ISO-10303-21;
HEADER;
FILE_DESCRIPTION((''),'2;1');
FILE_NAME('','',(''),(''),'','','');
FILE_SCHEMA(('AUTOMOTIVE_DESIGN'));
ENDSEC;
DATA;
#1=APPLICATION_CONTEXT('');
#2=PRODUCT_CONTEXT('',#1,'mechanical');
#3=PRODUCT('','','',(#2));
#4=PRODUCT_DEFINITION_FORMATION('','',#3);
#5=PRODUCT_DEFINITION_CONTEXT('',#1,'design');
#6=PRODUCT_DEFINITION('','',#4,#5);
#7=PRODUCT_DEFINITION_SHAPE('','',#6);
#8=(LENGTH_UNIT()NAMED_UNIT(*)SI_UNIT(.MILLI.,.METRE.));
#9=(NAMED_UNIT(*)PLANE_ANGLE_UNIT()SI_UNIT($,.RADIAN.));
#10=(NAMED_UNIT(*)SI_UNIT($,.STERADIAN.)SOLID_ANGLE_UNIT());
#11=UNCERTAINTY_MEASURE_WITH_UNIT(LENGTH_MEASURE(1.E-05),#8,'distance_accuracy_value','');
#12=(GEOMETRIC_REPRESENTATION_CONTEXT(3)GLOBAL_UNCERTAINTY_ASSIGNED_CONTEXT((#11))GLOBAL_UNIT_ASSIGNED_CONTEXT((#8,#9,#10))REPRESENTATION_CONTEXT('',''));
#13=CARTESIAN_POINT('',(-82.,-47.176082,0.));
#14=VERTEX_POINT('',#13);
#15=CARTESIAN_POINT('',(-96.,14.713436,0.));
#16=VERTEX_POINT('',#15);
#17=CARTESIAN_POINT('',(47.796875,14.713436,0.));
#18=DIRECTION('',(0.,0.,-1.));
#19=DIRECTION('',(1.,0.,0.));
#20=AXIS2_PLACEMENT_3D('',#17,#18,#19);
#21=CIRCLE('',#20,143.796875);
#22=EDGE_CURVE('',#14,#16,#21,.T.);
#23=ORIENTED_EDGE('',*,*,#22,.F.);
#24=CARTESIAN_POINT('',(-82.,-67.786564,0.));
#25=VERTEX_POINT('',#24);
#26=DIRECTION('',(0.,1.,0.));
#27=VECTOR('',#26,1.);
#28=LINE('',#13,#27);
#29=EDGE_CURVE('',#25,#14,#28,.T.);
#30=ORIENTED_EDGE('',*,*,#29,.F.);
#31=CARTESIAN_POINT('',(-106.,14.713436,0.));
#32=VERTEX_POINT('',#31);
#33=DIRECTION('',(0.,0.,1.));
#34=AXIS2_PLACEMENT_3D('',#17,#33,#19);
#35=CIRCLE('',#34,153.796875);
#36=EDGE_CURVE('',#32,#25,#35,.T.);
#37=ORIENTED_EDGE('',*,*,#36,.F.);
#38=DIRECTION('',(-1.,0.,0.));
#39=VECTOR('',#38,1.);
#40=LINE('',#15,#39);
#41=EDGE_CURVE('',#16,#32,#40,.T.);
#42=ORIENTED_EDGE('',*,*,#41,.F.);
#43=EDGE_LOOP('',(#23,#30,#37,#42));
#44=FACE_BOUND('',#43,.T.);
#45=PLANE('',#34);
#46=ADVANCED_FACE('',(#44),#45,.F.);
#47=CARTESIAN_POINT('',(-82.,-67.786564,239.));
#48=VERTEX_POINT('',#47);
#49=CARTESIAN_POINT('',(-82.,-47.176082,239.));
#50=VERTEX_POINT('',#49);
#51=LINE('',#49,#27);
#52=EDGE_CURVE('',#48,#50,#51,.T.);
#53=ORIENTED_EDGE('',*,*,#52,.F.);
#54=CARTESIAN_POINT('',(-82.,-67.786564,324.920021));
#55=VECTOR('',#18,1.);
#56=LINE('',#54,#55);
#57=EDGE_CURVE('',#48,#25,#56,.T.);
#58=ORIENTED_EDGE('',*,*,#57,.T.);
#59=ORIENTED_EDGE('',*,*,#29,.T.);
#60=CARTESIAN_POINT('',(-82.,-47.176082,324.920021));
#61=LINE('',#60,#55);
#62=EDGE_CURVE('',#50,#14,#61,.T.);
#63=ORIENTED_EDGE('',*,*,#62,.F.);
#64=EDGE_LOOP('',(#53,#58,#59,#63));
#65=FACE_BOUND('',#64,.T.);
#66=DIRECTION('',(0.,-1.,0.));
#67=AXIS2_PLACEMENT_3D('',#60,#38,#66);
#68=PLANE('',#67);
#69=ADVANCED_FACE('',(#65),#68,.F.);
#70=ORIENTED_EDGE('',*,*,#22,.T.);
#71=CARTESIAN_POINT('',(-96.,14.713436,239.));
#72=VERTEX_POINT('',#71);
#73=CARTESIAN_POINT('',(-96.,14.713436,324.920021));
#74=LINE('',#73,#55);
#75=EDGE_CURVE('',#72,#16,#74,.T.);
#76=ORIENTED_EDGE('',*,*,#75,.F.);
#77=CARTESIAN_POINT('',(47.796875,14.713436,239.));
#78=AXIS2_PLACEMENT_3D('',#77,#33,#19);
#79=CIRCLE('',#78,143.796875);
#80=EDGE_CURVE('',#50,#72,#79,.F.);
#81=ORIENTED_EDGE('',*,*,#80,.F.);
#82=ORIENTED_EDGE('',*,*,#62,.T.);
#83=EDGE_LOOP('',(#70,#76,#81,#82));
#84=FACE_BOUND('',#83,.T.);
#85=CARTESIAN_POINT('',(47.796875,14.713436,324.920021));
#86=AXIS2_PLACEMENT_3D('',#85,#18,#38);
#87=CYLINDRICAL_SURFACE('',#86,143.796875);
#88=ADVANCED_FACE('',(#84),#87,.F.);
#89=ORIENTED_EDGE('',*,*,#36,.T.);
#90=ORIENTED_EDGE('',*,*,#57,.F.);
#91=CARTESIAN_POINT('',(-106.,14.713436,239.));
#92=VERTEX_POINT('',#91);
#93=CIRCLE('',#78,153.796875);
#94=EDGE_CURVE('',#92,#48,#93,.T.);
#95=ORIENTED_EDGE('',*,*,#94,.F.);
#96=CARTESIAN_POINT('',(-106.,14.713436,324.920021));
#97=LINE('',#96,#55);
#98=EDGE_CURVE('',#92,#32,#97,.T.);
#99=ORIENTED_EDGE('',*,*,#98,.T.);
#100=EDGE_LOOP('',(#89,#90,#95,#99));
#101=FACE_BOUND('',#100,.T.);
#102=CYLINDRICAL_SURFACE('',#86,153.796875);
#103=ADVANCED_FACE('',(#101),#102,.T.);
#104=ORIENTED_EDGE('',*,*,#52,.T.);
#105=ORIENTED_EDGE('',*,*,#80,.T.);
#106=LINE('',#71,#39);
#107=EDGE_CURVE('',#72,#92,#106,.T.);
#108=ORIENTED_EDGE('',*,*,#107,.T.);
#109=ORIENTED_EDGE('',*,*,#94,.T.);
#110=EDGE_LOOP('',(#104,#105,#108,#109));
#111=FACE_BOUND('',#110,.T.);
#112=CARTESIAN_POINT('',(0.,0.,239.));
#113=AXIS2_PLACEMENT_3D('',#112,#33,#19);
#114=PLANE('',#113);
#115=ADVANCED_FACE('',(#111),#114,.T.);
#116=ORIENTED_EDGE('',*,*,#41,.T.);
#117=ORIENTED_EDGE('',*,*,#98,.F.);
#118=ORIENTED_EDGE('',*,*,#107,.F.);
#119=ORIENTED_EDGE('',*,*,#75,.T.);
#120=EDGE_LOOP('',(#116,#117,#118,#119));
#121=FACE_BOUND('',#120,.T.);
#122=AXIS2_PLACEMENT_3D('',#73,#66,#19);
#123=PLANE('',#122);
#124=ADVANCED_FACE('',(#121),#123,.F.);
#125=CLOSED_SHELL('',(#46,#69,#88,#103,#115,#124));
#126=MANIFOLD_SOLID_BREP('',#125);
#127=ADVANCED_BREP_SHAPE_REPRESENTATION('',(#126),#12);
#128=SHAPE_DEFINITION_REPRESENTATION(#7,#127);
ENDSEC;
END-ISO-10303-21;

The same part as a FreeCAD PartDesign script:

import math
import FreeCAD as App
import Part
import Sketcher

doc = App.newDocument("Part")
params = doc.addObject("Spreadsheet::Sheet", "Params")
for row, (alias, value) in enumerate([
    ("sketch1_width", "10 mm"),
    ("pad1_length", "239 mm"),
], start=1):
    params.set(f"A{row}", alias)
    params.set(f"B{row}", "=" + value)
    params.setAlias(f"B{row}", alias)

body = doc.addObject("PartDesign::Body", "Body")

# Sketch on XY plane
sketch1 = body.newObject("Sketcher::SketchObject", "Sketch")
sketch1.AttachmentSupport = (doc.getObject("XY_Plane"), [""])
sketch1.MapMode = "FlatFace"
sketch1.addGeometry(Part.LineSegment(App.Vector(-82, -68, 0), App.Vector(-82, -47, 0)), False)
sketch1.addGeometry(Part.ArcOfCircle(Part.Circle(App.Vector(48, 15, 0), App.Vector(0, 0, 1), 144), math.radians(-180), math.radians(-155)), False)
sketch1.addGeometry(Part.LineSegment(App.Vector(-96, 15, 0), App.Vector(-106, 15, 0)), False)
sketch1.addGeometry(Part.ArcOfCircle(Part.Circle(App.Vector(48, 15, 0), App.Vector(0, 0, 1), 154), math.radians(180), math.radians(212)), False)
sketch1.addConstraint(Sketcher.Constraint("Coincident", 0, 2, 1, 2))
sketch1.addConstraint(Sketcher.Constraint("Coincident", 1, 1, 2, 1))
sketch1.addConstraint(Sketcher.Constraint("Coincident", 2, 2, 3, 1))
sketch1.addConstraint(Sketcher.Constraint("Coincident", 3, 2, 0, 1))
sketch1.addConstraint(Sketcher.Constraint("Vertical", 0))
sketch1.addConstraint(Sketcher.Constraint("Horizontal", 2))
sketch1.addConstraint(Sketcher.Constraint("Coincident", 3, 3, 1, 3))
sketch1.addConstraint(Sketcher.Constraint("Horizontal", 3, 3, 1, 1))
sketch1.addConstraint(Sketcher.Constraint("DistanceX", 2, 2, 2, 1, 10.0))
sketch1.addConstraint(Sketcher.Constraint("DistanceX", 0, 2, -1, 1, 82.0))
sketch1.addConstraint(Sketcher.Constraint("DistanceX", 1, 1, -1, 1, 96.0))
sketch1.addConstraint(Sketcher.Constraint("Radius", 1, 143.796875))
sketch1.addConstraint(Sketcher.Constraint("DistanceY", -1, 1, 1, 3, 14.713436))
sketch1.setExpression("Constraints[8]", "Params.sketch1_width")
pad1 = body.newObject("PartDesign::Pad", "Pad")
pad1.Profile = sketch1
pad1.setExpression("Length", "Params.pad1_length")

doc.recompute()
